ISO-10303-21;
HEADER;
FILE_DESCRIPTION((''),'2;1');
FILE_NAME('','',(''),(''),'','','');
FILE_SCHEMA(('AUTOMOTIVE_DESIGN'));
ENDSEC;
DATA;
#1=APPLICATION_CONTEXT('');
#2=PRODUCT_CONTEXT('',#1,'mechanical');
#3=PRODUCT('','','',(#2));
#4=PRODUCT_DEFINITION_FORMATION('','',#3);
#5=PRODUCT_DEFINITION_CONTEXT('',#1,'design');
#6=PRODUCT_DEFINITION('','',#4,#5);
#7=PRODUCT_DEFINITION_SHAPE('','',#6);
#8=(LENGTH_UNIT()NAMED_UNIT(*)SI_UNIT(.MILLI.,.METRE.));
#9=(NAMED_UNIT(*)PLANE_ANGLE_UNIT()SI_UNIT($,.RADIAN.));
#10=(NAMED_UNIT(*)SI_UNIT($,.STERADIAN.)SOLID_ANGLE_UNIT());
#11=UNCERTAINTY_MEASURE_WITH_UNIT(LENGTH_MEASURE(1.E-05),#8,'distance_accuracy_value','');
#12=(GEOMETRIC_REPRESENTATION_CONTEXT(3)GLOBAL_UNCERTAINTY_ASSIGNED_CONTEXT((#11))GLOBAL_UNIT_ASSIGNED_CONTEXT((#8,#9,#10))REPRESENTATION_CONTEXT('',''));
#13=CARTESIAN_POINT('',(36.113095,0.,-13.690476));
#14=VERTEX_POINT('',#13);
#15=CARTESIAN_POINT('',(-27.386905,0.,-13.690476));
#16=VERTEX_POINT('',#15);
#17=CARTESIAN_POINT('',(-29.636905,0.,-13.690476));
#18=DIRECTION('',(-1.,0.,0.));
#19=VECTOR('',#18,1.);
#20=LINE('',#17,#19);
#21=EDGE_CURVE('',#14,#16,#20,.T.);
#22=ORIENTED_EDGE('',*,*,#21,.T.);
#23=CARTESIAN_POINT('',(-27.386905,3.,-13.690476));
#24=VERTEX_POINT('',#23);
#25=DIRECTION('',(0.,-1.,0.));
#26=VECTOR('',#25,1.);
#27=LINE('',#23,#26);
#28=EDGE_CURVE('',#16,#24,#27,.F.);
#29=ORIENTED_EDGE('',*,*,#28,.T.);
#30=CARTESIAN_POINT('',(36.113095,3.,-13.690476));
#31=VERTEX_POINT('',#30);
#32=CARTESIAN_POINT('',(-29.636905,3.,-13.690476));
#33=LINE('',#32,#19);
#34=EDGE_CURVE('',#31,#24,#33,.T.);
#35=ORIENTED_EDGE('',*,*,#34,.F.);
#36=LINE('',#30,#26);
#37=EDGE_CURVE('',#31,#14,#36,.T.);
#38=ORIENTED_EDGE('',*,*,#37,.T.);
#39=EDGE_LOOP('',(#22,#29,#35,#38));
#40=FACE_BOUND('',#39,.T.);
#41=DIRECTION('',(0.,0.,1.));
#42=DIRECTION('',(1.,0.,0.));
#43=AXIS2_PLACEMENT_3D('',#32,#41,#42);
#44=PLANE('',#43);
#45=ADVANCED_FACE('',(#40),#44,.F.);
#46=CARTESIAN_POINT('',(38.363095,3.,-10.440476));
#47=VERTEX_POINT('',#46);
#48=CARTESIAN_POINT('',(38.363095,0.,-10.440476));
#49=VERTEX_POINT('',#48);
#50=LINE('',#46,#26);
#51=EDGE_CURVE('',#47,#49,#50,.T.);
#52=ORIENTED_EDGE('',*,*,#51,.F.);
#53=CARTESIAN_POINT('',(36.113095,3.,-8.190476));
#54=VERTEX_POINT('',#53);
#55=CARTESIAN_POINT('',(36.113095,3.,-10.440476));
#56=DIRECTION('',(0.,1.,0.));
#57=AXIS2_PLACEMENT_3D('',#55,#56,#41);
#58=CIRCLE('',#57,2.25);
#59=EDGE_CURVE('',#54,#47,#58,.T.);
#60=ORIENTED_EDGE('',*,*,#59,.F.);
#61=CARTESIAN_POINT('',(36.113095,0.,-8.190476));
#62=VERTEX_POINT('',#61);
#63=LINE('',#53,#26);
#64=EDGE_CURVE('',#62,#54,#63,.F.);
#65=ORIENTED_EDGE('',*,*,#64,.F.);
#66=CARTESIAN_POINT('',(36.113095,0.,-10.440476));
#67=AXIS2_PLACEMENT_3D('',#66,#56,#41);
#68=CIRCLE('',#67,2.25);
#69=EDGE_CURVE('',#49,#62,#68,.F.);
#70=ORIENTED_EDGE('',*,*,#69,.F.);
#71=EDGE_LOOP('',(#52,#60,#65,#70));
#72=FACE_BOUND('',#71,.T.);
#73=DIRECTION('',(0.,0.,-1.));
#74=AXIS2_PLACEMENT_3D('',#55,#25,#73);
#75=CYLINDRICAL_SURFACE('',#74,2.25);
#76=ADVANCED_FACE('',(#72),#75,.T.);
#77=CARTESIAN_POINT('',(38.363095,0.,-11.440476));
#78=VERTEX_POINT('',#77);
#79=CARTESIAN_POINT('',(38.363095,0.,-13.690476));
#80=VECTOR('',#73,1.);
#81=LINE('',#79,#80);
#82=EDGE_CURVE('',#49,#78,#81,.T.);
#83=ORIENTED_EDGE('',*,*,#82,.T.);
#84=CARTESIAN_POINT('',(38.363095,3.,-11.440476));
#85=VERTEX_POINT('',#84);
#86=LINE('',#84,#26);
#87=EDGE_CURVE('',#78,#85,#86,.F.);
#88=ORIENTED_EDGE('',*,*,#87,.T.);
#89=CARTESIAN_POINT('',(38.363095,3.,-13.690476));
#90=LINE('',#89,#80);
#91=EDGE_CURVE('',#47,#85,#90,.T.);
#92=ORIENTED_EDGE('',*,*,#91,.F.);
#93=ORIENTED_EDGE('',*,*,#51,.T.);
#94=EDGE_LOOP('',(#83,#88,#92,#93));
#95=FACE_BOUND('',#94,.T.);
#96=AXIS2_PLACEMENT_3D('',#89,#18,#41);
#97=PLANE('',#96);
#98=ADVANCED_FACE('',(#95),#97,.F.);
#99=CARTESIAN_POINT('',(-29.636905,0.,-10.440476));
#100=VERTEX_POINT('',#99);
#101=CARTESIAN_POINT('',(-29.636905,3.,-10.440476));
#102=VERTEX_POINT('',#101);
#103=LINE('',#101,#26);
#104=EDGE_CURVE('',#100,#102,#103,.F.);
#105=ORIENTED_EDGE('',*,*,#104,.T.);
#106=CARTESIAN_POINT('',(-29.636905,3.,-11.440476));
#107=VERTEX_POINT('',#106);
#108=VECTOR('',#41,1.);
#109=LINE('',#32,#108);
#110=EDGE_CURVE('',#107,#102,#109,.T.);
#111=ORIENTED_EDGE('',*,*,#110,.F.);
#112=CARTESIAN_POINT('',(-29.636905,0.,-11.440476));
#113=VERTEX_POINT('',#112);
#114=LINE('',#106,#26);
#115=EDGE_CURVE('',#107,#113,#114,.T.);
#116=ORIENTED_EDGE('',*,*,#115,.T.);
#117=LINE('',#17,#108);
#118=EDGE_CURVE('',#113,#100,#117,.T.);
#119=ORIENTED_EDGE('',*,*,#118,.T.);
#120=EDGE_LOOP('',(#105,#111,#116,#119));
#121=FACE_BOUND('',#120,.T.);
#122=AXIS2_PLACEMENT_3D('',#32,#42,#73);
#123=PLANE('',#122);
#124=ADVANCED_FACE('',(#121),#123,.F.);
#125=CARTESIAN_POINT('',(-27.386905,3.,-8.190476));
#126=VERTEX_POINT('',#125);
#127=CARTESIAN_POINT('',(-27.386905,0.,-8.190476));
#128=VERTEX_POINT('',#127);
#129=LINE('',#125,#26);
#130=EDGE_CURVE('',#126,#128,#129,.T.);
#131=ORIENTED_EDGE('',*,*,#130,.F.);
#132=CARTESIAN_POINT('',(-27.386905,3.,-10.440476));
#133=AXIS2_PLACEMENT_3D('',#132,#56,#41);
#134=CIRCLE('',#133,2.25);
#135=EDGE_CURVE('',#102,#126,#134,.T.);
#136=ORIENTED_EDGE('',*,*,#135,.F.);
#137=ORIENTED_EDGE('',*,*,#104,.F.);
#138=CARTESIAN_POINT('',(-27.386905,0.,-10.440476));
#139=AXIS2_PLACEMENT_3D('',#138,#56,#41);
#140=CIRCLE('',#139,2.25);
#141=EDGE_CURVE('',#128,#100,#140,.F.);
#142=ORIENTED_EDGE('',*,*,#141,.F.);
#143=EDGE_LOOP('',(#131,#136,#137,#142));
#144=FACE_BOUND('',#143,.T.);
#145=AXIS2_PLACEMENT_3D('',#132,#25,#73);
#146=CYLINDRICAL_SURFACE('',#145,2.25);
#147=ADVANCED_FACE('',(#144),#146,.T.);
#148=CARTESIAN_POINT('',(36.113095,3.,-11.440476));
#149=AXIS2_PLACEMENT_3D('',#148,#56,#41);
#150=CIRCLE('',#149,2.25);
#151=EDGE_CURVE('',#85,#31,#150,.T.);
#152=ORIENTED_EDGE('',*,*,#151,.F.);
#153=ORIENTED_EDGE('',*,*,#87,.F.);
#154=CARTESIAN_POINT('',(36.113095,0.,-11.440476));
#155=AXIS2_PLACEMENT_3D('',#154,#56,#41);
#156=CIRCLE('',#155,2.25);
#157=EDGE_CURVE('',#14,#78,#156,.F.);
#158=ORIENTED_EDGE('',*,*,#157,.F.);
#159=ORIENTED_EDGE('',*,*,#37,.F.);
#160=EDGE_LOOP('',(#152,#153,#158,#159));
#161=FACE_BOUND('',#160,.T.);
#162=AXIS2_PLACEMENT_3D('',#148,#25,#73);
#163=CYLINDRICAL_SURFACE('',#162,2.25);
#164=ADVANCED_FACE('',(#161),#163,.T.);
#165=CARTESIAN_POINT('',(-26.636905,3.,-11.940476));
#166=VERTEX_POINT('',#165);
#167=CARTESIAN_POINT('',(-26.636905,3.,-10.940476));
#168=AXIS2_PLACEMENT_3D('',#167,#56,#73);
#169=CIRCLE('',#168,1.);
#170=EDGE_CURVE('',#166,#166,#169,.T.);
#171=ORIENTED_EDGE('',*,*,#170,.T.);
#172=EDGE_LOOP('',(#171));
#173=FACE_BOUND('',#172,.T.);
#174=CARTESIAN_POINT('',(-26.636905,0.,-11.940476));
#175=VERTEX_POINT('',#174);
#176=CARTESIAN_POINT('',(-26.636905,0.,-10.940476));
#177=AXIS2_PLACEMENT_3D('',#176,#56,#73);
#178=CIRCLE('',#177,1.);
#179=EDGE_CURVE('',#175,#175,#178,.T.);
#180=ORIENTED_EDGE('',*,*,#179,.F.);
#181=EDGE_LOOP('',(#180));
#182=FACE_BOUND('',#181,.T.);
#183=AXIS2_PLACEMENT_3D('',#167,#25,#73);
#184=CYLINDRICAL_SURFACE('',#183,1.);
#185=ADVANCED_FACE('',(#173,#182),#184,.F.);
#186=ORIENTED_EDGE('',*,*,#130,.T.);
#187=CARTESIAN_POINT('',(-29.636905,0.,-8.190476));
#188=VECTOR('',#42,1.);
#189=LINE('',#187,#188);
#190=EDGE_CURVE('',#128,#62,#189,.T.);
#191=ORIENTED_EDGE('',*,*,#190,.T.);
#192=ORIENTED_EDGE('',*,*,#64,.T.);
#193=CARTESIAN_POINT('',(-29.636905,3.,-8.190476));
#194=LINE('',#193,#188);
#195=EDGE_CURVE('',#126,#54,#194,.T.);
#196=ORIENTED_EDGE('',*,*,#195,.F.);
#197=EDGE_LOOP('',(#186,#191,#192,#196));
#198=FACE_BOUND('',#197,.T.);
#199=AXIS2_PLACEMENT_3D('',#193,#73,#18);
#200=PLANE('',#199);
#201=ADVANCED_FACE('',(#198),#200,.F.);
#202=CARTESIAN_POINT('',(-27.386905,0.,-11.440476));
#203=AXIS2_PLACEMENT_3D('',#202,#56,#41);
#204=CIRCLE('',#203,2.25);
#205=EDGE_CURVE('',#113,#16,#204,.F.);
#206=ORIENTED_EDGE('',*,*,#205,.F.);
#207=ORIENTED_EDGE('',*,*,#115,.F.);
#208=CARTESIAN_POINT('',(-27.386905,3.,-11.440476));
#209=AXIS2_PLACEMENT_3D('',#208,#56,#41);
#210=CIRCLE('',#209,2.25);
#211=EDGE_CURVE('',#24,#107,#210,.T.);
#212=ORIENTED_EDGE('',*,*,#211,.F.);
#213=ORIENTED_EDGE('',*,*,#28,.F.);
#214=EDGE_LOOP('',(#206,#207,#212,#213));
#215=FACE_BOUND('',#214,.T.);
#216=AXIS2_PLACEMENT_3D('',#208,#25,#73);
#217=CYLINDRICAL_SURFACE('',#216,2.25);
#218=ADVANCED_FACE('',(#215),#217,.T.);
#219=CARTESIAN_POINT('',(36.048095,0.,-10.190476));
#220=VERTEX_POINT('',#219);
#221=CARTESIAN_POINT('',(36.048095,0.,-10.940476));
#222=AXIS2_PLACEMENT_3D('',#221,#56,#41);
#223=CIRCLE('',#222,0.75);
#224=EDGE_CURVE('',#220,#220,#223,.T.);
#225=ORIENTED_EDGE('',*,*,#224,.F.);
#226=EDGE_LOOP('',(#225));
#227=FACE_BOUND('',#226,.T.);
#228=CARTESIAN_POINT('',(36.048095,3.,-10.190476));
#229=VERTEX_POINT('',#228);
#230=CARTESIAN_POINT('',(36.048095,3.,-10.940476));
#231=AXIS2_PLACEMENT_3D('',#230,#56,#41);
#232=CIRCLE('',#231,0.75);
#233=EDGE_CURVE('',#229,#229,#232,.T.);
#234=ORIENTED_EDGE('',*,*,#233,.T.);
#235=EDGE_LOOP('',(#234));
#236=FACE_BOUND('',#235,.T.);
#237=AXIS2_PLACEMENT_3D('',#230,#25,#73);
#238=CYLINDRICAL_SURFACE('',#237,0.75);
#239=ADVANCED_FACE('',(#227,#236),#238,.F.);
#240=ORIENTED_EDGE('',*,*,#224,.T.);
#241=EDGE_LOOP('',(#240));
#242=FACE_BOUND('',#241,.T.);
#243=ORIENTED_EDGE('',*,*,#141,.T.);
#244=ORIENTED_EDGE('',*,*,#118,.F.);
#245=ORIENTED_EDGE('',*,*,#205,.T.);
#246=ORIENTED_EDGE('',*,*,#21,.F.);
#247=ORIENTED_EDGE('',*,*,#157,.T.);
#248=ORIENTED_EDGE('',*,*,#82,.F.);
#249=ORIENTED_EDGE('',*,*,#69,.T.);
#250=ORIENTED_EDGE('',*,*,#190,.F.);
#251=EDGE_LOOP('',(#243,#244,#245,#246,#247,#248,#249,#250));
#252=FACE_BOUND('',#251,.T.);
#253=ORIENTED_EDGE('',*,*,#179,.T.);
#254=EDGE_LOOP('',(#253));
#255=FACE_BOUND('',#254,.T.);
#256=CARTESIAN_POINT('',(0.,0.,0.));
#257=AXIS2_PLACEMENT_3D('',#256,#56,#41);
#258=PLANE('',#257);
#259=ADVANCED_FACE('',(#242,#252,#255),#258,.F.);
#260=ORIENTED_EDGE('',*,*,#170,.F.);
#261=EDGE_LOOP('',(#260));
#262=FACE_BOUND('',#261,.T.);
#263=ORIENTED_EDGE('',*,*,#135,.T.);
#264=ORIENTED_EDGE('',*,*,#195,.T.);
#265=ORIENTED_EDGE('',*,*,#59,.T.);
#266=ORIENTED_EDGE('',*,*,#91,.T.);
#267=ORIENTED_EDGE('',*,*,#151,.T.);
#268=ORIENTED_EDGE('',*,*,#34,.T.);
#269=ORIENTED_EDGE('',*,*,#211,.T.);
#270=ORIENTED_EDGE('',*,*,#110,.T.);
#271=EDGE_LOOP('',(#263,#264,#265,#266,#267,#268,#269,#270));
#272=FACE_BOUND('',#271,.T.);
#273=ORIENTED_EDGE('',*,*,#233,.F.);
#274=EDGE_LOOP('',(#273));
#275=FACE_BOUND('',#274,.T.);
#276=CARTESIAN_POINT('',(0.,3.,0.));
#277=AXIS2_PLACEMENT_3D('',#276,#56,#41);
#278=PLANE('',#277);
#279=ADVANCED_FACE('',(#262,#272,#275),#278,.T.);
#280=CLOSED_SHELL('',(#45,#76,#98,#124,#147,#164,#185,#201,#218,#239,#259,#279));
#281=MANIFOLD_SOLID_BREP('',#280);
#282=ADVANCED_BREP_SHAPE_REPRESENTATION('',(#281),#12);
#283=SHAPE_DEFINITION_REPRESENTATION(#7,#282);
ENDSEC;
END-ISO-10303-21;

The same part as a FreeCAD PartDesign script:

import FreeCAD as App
import Part
import Sketcher

V = App.Vector


def edges_at(feature, points):
    """Names of the edges that pass closest to the given points."""
    edges = feature.Shape.Edges
    near = lambda p: min(range(len(edges)), key=lambda i: edges[i].distToShape(Part.Vertex(*p))[0])
    return sorted({f"Edge{near(p) + 1}" for p in points})

doc = App.newDocument("Part")
params = doc.addObject("Spreadsheet::Sheet", "Params")
for row, (alias, value) in enumerate([
    ("sketch1_diameter", "2 mm"),
    ("sketch1_diameter2", "1.5 mm"),
    ("sketch1_width", "68 mm"),
    ("sketch1_height", "5.5 mm"),
    ("pad1_length", "3 mm"),
    ("fillet_radius", "2.25 mm"),
], start=1):
    params.set(f"A{row}", alias)
    params.set(f"B{row}", "=" + value)
    params.setAlias(f"B{row}", alias)

body = doc.addObject("PartDesign::Body", "Body")

sketch1 = body.newObject("Sketcher::SketchObject", "Sketch")
sketch1.AttachmentSupport = (doc.getObject("XZ_Plane"), [""])
sketch1.MapMode = "FlatFace"
sketch1.addGeometry(Part.LineSegment(V(-29.6, -13.7, 0), V(-29.6, -8.2, 0)), False)
sketch1.addGeometry(Part.LineSegment(V(-29.6, -8.2, 0), V(38.4, -8.2, 0)), False)
sketch1.addGeometry(Part.LineSegment(V(38.4, -8.2, 0), V(38.4, -13.7, 0)), False)
sketch1.addGeometry(Part.LineSegment(V(38.4, -13.7, 0), V(-29.6, -13.7, 0)), False)
sketch1.addGeometry(Part.Circle(V(-26.6, -10.9, 0), V(0, 0, 1), 1), False)
sketch1.addGeometry(Part.Circle(V(36, -10.9, 0), V(0, 0, 1), 0.8), False)
sketch1.addConstraint(Sketcher.Constraint("Coincident", 0, 2, 1, 1))
sketch1.addConstraint(Sketcher.Constraint("Coincident", 1, 2, 2, 1))
sketch1.addConstraint(Sketcher.Constraint("Coincident", 2, 2, 3, 1))
sketch1.addConstraint(Sketcher.Constraint("Coincident", 3, 2, 0, 1))
sketch1.addConstraint(Sketcher.Constraint("Vertical", 0))
sketch1.addConstraint(Sketcher.Constraint("Horizontal", 1))
sketch1.addConstraint(Sketcher.Constraint("Vertical", 2))
sketch1.addConstraint(Sketcher.Constraint("Horizontal", 3))
sketch1.addConstraint(Sketcher.Constraint("Horizontal", 4, 3, 5, 3))
sketch1.addConstraint(Sketcher.Constraint("Diameter", 4, 2.0))
sketch1.addConstraint(Sketcher.Constraint("Diameter", 5, 1.5))
sketch1.addConstraint(Sketcher.Constraint("DistanceX", 1, 1, 1, 2, 68.0))
sketch1.addConstraint(Sketcher.Constraint("DistanceY", 0, 1, 0, 2, 5.5))
sketch1.addConstraint(Sketcher.Constraint("DistanceX", 0, 2, 4, 3, 3.0))
sketch1.addConstraint(Sketcher.Constraint("DistanceY", 4, 3, 0, 2, 2.75))
sketch1.addConstraint(Sketcher.Constraint("DistanceX", 4, 3, 5, 3, 62.685))
sketch1.addConstraint(Sketcher.Constraint("DistanceX", 4, 3, -1, 1, 26.636905))
sketch1.addConstraint(Sketcher.Constraint("DistanceY", 4, 3, -1, 1, 10.940476))
sketch1.setExpression("Constraints[9]", "Params.sketch1_diameter")
sketch1.setExpression("Constraints[10]", "Params.sketch1_diameter2")
sketch1.setExpression("Constraints[11]", "Params.sketch1_width")
sketch1.setExpression("Constraints[12]", "Params.sketch1_height")
pad1 = body.newObject("PartDesign::Pad", "Pad")
pad1.Profile = sketch1
pad1.setExpression("Length", "Params.pad1_length")
pad1.Reversed = True
doc.recompute()

fillet = body.newObject("PartDesign::Fillet", "Fillet")
fillet.Base = (pad1, edges_at(pad1, [
    (-29.637, 1.5, -13.69),
    (38.363, 1.5, -13.69),
    (38.363, 1.5, -8.19),
    (-29.637, 1.5, -8.19),
]))
fillet.setExpression("Radius", "Params.fillet_radius")

doc.recompute()
